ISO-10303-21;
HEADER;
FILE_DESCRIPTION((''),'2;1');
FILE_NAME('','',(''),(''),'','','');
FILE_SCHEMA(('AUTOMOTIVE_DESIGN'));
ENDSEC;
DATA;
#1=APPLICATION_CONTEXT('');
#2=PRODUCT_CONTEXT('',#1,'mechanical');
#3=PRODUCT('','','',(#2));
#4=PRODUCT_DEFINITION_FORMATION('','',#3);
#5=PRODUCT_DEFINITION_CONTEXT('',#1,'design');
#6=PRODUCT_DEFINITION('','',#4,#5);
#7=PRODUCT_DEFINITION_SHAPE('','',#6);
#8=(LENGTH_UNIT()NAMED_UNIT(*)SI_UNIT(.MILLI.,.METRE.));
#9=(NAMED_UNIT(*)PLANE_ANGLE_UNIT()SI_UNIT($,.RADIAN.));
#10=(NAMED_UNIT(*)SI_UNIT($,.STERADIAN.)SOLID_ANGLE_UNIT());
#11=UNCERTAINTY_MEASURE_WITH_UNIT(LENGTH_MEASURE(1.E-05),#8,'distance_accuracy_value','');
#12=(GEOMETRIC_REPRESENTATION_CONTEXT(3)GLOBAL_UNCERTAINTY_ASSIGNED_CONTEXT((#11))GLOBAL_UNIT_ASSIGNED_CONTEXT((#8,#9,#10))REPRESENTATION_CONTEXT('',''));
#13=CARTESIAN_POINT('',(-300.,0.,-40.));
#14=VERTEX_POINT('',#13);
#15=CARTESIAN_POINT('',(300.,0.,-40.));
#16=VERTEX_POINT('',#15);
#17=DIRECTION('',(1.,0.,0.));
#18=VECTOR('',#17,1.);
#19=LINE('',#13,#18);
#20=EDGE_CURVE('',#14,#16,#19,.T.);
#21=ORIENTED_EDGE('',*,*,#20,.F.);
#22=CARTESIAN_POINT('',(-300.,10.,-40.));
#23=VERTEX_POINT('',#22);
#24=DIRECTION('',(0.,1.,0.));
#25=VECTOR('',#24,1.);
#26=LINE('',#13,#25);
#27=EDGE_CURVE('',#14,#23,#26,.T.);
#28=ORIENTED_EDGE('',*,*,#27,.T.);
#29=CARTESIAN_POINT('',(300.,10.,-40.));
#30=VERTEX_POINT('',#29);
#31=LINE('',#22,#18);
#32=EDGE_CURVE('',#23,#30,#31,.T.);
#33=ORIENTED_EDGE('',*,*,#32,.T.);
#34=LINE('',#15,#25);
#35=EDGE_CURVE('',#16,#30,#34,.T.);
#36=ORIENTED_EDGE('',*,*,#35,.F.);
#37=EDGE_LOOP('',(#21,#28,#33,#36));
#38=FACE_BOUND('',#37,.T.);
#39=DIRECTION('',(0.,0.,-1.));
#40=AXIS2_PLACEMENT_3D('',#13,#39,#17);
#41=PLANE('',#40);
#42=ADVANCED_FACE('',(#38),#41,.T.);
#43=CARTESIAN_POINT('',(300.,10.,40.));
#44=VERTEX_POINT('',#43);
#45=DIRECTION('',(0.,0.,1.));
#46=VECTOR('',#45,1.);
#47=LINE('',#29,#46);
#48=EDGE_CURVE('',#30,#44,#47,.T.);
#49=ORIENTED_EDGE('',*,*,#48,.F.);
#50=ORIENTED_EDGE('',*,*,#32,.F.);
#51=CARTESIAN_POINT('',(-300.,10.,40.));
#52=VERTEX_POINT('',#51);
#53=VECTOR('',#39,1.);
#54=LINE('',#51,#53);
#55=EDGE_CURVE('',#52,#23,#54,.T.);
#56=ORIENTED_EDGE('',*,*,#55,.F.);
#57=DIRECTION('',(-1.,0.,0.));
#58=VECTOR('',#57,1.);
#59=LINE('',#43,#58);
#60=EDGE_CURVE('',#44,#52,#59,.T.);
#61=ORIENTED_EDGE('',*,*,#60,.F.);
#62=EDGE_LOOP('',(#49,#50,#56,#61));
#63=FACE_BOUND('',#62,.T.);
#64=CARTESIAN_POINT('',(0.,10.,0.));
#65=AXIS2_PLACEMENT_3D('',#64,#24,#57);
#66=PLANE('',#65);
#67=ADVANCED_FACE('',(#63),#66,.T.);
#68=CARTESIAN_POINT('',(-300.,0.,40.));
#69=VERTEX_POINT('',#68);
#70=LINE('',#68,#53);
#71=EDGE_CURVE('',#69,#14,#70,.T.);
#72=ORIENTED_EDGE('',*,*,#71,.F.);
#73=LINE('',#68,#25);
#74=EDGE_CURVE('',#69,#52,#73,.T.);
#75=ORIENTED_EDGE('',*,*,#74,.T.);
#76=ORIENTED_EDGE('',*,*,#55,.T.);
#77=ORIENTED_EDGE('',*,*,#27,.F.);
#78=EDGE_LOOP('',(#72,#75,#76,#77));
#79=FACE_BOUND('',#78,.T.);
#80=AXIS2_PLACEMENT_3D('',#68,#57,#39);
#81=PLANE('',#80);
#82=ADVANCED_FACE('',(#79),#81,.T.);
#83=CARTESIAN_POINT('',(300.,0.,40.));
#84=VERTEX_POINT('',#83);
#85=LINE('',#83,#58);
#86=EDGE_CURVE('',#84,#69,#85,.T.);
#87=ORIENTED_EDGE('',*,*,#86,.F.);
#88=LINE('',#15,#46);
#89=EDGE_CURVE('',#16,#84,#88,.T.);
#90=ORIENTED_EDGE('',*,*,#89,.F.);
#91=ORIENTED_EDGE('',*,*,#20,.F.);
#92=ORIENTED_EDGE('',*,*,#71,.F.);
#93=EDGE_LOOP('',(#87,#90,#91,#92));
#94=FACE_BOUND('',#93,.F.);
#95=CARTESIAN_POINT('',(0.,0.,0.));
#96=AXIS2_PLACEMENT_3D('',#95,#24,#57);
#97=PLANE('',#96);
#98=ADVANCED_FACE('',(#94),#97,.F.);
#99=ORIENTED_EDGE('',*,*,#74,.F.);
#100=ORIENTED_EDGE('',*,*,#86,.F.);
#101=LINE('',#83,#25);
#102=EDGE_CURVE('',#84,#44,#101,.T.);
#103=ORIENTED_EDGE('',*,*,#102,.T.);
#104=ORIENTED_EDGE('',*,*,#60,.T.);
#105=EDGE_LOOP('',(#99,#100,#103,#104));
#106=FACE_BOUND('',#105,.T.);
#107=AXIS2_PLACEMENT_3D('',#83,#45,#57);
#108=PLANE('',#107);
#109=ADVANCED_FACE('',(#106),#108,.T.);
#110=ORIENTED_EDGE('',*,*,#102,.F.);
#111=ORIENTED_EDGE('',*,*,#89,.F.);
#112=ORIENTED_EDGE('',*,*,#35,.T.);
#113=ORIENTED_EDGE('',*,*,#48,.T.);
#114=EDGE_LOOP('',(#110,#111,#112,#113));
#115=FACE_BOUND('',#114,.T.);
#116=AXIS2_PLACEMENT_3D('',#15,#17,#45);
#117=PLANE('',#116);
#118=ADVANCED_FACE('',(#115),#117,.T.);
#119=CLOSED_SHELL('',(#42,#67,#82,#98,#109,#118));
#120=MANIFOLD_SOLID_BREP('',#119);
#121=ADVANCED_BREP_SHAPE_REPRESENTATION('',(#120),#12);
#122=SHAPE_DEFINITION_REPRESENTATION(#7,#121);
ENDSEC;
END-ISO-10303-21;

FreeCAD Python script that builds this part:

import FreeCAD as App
import Part
import Sketcher

V = App.Vector
Q = App.Units.Quantity

doc = App.newDocument("Part")
body = doc.addObject("PartDesign::Body", "Body")

sketch1 = body.newObject("Sketcher::SketchObject", "Sketch")
sketch1.AttachmentSupport = (doc.getObject("XZ_Plane"), [""])
sketch1.MapMode = "FlatFace"
sketch1.addGeometry([
    Part.LineSegment(V(300, -40, 0), V(-300, -40, 0)),
    Part.LineSegment(V(-300, -40, 0), V(-300, 40, 0)),
    Part.LineSegment(V(-300, 40, 0), V(300, 40, 0)),
    Part.LineSegment(V(300, 40, 0), V(300, -40, 0)),
], False)
sketch1.addConstraint([
    Sketcher.Constraint("Coincident", 0, 2, 1, 1),
    Sketcher.Constraint("Coincident", 1, 2, 2, 1),
    Sketcher.Constraint("Coincident", 2, 2, 3, 1),
    Sketcher.Constraint("Coincident", 3, 2, 0, 1),
    Sketcher.Constraint("Horizontal", 0),
    Sketcher.Constraint("Vertical", 1),
    Sketcher.Constraint("Horizontal", 2),
    Sketcher.Constraint("Vertical", 3),
    Sketcher.Constraint("Symmetric", 0, 2, 2, 2, -1, 1),
    Sketcher.Constraint("DistanceX", 0, 2, 0, 1, Q("600 mm")),
    Sketcher.Constraint("DistanceY", 1, 1, 1, 2, Q("80 mm")),
])
pad1 = body.newObject("PartDesign::Pad", "Pad")
pad1.Profile = sketch1
pad1.Length = 10
pad1.Reversed = True

doc.recompute()
